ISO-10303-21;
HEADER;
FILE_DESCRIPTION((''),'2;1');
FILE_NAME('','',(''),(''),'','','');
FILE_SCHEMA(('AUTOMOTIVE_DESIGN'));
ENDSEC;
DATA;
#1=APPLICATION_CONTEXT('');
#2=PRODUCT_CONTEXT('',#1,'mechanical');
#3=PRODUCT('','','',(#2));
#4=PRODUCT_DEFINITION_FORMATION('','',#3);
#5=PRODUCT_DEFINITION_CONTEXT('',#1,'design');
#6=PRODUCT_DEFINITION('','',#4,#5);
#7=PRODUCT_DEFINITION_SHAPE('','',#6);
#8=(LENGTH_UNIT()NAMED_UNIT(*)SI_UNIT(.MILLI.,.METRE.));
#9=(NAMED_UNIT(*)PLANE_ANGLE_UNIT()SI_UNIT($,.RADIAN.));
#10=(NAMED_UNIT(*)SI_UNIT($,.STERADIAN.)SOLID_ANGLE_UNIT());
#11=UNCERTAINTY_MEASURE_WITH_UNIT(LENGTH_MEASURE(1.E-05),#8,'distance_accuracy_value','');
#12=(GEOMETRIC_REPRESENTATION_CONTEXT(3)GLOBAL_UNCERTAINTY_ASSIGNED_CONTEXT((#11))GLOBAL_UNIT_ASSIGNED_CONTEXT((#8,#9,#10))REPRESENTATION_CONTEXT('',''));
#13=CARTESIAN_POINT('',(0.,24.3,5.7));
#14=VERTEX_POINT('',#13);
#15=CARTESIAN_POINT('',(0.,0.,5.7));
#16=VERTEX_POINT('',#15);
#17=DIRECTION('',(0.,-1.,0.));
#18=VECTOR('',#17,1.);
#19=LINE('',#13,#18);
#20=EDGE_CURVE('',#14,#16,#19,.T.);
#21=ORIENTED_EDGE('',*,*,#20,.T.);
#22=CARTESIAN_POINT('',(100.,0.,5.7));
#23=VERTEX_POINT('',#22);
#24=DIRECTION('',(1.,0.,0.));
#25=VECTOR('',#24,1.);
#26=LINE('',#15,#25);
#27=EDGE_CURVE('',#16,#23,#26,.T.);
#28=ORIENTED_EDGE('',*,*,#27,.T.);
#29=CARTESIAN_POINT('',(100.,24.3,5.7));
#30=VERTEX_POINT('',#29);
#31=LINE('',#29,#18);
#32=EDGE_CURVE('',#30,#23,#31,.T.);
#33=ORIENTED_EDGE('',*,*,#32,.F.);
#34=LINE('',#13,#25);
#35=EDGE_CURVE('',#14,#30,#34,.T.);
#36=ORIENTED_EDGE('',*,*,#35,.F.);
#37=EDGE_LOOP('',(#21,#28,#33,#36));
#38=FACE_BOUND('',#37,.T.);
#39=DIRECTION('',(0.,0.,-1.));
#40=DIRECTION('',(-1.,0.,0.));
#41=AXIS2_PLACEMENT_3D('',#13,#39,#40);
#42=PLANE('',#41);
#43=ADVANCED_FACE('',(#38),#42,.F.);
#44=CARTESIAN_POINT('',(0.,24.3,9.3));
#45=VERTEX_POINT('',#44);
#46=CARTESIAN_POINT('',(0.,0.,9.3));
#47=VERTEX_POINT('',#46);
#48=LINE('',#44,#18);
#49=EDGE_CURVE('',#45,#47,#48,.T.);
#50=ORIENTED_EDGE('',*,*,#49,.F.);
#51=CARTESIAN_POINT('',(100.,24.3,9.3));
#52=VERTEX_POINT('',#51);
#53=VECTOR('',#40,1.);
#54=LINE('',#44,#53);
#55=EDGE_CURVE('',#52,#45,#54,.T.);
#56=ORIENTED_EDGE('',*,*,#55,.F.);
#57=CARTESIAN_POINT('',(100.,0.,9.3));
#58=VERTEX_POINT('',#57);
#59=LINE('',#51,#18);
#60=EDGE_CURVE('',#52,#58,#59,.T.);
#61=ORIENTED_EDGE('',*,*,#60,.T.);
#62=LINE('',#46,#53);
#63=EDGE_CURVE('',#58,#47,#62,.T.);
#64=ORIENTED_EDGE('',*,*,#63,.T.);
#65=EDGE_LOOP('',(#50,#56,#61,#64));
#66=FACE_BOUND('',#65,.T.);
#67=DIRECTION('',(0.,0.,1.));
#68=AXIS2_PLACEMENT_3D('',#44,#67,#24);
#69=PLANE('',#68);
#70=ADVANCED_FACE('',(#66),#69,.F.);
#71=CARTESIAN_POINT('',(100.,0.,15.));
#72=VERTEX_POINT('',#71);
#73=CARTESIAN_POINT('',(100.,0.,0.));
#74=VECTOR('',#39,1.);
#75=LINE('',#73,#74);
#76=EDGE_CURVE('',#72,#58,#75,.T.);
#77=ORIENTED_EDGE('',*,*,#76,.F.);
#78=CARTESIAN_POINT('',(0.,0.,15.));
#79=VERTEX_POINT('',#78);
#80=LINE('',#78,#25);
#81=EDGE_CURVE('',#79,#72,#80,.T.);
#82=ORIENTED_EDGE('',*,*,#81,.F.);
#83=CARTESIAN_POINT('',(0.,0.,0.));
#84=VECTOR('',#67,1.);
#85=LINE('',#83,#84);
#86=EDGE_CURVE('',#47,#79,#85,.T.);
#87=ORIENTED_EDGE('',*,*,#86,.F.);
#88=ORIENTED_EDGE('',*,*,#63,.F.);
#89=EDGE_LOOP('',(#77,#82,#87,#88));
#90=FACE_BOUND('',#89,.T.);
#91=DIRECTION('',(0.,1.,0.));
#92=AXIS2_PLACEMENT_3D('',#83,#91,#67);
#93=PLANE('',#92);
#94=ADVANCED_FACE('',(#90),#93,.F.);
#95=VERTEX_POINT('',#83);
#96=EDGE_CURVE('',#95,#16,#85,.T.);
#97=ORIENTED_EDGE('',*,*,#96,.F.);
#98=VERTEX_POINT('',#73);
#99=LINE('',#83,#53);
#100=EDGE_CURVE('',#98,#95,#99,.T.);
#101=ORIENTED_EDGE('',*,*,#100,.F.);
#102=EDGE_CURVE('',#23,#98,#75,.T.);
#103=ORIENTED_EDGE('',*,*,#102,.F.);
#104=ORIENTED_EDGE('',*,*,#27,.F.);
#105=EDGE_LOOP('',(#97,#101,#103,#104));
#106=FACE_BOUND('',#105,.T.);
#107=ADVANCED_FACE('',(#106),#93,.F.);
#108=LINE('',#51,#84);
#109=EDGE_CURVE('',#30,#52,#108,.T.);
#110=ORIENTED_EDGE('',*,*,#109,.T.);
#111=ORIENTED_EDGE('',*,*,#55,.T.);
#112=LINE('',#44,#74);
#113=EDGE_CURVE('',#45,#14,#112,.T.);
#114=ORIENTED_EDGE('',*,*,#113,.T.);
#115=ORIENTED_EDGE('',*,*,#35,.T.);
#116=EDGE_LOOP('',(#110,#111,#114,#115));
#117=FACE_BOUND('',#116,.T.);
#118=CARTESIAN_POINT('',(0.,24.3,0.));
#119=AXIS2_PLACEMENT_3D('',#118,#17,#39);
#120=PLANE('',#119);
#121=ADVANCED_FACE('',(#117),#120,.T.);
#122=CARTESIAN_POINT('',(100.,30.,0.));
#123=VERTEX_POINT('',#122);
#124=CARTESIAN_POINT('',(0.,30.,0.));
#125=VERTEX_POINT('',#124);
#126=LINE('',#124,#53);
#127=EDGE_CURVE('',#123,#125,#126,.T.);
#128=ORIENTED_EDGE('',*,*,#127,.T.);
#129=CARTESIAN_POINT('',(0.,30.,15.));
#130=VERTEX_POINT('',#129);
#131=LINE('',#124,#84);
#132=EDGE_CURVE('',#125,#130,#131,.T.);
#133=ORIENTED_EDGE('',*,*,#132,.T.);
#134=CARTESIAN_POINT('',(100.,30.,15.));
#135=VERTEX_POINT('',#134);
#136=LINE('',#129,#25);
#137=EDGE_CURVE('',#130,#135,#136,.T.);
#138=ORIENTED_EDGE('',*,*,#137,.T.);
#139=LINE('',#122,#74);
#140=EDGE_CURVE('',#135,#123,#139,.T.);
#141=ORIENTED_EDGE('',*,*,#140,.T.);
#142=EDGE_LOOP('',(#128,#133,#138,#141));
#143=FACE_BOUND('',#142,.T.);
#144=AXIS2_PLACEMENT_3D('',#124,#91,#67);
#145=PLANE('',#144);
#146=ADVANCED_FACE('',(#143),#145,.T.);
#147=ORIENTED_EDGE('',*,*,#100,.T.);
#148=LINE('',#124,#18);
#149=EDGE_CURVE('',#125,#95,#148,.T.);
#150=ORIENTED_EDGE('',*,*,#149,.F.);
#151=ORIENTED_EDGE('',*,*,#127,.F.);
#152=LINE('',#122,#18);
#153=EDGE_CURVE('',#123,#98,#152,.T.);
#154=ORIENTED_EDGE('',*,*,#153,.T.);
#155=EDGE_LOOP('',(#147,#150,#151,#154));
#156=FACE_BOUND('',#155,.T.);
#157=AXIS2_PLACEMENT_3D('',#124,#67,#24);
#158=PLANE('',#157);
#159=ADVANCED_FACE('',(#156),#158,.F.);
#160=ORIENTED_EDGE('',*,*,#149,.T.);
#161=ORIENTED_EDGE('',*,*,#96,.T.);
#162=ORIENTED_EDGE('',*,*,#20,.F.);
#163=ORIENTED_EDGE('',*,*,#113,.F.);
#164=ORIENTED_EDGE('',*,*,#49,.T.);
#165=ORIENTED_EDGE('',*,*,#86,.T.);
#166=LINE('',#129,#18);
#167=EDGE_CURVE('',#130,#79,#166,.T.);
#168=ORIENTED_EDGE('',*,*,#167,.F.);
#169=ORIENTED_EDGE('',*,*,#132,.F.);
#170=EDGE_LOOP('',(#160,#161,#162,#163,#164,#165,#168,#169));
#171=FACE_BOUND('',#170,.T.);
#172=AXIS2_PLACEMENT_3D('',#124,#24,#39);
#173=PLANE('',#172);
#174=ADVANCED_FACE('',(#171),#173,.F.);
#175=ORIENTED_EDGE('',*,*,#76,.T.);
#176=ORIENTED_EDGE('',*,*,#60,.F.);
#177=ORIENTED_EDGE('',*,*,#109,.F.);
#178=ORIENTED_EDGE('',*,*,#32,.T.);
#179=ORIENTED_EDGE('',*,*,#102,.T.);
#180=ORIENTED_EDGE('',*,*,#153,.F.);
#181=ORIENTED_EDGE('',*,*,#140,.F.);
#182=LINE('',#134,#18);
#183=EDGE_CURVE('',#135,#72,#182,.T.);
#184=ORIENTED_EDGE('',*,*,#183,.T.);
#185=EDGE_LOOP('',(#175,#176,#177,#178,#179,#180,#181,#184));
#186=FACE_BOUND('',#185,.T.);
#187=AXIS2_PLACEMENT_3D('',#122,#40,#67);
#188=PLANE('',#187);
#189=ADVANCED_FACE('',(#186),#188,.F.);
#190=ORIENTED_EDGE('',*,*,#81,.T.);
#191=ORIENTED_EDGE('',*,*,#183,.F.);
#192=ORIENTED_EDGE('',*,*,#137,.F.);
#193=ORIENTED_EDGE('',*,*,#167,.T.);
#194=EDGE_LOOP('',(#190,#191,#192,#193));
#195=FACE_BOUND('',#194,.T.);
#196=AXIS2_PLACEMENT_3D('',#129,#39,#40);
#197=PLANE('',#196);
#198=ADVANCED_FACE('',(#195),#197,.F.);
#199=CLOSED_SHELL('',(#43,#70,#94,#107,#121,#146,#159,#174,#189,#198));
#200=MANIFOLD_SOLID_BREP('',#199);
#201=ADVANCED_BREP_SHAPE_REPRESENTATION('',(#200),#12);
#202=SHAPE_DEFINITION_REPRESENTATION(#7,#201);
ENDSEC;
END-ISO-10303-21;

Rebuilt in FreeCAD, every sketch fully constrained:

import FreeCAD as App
import Part
import Sketcher

doc = App.newDocument("Part")
body = doc.addObject("PartDesign::Body", "Body")

# Sketch on XZ plane
sketch1 = body.newObject("Sketcher::SketchObject", "Sketch")
sketch1.AttachmentSupport = (doc.getObject("XZ_Plane"), [""])
sketch1.MapMode = "FlatFace"
sketch1.addGeometry([
    Part.LineSegment(App.Vector(0, 0, 0), App.Vector(0, 15, 0)),
    Part.LineSegment(App.Vector(0, 15, 0), App.Vector(100, 15, 0)),
    Part.LineSegment(App.Vector(100, 15, 0), App.Vector(100, 0, 0)),
    Part.LineSegment(App.Vector(100, 0, 0), App.Vector(0, 0, 0)),
], False)
sketch1.addConstraint([
    Sketcher.Constraint("Coincident", 0, 2, 1, 1),
    Sketcher.Constraint("Coincident", 1, 2, 2, 1),
    Sketcher.Constraint("Coincident", 2, 2, 3, 1),
    Sketcher.Constraint("Coincident", 3, 2, 0, 1),
    Sketcher.Constraint("Vertical", 0),
    Sketcher.Constraint("Horizontal", 1),
    Sketcher.Constraint("Vertical", 2),
    Sketcher.Constraint("Horizontal", 3),
    Sketcher.Constraint("Coincident", 3, 2, -1, 1),
    Sketcher.Constraint("DistanceX", 1, 1, 1, 2, 100.0),
    Sketcher.Constraint("DistanceY", 0, 1, 0, 2, 15.0),
])
pad1 = body.newObject("PartDesign::Pad", "Pad")
pad1.Profile = sketch1
pad1.Length = 30
pad1.Reversed = True

# Sketch on XZ plane
sketch2 = body.newObject("Sketcher::SketchObject", "Sketch001")
sketch2.AttachmentSupport = (doc.getObject("XZ_Plane"), [""])
sketch2.MapMode = "FlatFace"
sketch2.addGeometry([
    Part.LineSegment(App.Vector(0, 9.3, 0), App.Vector(0, 5.7, 0)),
    Part.LineSegment(App.Vector(0, 5.7, 0), App.Vector(100, 5.7, 0)),
    Part.LineSegment(App.Vector(100, 5.7, 0), App.Vector(100, 9.3, 0)),
    Part.LineSegment(App.Vector(100, 9.3, 0), App.Vector(0, 9.3, 0)),
], False)
sketch2.addConstraint([
    Sketcher.Constraint("Coincident", 0, 2, 1, 1),
    Sketcher.Constraint("Coincident", 1, 2, 2, 1),
    Sketcher.Constraint("Coincident", 2, 2, 3, 1),
    Sketcher.Constraint("Coincident", 3, 2, 0, 1),
    Sketcher.Constraint("Vertical", 0),
    Sketcher.Constraint("Horizontal", 1),
    Sketcher.Constraint("Vertical", 2),
    Sketcher.Constraint("Horizontal", 3),
    Sketcher.Constraint("PointOnObject", 0, 2, -2),
    Sketcher.Constraint("DistanceX", 1, 1, 1, 2, 100.0),
    Sketcher.Constraint("DistanceY", 0, 2, 0, 1, 3.6),
    Sketcher.Constraint("DistanceY", -1, 1, 0, 2, 5.7),
])
pocket1 = body.newObject("PartDesign::Pocket", "Pocket")
pocket1.Profile = sketch2
pocket1.Length = 24.3

doc.recompute()
